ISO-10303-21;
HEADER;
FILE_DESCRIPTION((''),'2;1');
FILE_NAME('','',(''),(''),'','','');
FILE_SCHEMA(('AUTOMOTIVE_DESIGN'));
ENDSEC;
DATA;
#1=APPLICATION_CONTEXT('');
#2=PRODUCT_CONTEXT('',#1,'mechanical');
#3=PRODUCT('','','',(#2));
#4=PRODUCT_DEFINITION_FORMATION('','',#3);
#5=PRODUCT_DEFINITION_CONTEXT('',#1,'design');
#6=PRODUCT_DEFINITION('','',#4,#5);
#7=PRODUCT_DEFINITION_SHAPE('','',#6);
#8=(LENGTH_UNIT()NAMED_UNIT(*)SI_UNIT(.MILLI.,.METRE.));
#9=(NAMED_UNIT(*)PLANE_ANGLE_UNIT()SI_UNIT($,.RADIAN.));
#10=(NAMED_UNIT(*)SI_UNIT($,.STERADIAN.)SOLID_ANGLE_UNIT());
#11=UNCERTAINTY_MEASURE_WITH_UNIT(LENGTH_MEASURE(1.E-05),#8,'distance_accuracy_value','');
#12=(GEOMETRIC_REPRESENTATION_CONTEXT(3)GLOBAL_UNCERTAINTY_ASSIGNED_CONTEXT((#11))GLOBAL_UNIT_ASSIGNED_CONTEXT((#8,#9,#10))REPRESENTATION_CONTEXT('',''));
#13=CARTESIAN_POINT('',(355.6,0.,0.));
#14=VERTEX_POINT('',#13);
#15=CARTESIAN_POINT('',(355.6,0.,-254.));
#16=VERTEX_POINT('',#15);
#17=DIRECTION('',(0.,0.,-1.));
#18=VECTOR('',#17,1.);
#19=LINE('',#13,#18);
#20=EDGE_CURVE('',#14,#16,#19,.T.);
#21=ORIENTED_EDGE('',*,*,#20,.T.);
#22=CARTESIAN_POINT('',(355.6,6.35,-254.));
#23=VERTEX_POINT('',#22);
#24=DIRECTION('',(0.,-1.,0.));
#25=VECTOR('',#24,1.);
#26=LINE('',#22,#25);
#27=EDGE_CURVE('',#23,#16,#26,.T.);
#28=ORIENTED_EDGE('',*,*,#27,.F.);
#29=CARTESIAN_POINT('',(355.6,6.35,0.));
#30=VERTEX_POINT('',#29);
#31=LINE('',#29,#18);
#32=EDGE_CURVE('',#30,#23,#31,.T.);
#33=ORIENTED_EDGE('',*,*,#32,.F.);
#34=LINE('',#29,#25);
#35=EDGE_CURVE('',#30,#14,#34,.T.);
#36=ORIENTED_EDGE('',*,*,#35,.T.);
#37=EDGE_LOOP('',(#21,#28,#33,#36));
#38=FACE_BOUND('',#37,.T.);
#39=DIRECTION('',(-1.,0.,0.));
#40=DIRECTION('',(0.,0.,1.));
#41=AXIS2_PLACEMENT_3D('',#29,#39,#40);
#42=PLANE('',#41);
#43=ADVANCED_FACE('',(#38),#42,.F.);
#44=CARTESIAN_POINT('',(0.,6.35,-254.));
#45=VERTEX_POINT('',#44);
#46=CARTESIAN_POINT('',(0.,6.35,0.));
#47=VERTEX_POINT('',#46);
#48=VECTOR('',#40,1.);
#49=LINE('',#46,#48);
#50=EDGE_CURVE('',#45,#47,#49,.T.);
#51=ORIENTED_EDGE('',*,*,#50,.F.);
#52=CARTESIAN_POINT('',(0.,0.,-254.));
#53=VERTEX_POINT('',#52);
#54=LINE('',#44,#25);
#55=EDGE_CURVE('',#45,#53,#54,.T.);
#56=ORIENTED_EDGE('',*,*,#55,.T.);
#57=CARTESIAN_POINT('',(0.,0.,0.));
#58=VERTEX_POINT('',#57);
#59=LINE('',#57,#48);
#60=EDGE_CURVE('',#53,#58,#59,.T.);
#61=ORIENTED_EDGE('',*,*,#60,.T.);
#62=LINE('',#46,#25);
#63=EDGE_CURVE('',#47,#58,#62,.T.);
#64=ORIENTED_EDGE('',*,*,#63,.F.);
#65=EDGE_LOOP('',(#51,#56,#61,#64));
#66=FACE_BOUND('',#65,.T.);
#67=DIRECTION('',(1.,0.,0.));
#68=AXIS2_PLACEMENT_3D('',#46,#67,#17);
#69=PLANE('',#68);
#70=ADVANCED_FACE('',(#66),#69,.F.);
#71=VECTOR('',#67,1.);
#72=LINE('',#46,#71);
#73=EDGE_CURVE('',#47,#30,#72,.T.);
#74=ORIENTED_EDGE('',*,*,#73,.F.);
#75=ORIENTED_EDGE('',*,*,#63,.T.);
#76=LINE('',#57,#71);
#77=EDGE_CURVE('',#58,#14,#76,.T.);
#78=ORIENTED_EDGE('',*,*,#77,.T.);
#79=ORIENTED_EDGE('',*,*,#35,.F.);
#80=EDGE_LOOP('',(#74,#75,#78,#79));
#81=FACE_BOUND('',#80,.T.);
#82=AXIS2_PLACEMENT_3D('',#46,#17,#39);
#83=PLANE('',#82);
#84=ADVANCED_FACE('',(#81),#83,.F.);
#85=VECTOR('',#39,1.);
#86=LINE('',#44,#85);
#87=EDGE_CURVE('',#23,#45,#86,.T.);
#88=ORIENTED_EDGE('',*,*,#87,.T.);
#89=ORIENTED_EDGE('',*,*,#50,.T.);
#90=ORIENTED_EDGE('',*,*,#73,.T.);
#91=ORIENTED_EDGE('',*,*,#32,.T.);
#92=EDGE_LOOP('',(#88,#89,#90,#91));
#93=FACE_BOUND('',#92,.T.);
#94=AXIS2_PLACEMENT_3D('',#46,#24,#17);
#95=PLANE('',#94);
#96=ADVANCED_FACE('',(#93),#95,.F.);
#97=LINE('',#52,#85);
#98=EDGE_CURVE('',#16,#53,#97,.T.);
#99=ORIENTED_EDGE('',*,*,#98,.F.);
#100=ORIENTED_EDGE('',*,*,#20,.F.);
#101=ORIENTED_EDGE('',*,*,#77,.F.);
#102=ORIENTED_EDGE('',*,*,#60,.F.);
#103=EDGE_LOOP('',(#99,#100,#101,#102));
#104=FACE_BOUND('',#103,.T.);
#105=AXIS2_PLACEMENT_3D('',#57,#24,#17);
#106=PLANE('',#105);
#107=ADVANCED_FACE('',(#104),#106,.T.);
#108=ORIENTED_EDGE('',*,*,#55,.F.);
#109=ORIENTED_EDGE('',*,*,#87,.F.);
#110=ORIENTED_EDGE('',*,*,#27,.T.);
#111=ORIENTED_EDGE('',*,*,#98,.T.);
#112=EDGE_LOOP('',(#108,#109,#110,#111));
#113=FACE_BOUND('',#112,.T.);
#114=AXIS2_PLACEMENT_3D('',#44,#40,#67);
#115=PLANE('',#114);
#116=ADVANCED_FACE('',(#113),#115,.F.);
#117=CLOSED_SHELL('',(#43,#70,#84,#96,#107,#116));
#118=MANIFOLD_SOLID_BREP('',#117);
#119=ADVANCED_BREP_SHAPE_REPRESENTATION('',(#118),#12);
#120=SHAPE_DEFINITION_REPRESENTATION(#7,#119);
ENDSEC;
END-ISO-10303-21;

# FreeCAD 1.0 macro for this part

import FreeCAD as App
import Part
import Sketcher
Q = App.Units.Quantity


def add_polygon(sketch, points):
    """Adds a closed chain of lines whose ends are joined by coincident constraints."""
    first, n = sketch.GeometryCount, len(points)
    for a, b in zip(points, points[1:] + points[:1]):
        sketch.addGeometry(Part.LineSegment(App.Vector(*a, 0), App.Vector(*b, 0)), False)
    for i in range(n):
        sketch.addConstraint(Sketcher.Constraint("Coincident", first + i, 2, first + (i + 1) % n, 1))

doc = App.newDocument("Part")
params = doc.addObject("Spreadsheet::Sheet", "Params")
for row, (alias, value) in enumerate([
    ("sketch1_width", "14 in"),
    ("sketch1_height", "10 in"),
    ("pad1_length", "0.25 in"),
], start=1):
    params.set(f"A{row}", alias)
    params.set(f"B{row}", "=" + value)
    params.setAlias(f"B{row}", alias)

body = doc.addObject("PartDesign::Body", "Body")

sketch1 = body.newObject("Sketcher::SketchObject", "Sketch")
sketch1.AttachmentSupport = (doc.getObject("XZ_Plane"), [""])
sketch1.MapMode = "FlatFace"
add_polygon(sketch1, [(0, -254), (0, 0), (356, 0), (356, -254)])
sketch1.addConstraint([
    Sketcher.Constraint("Vertical", 0),
    Sketcher.Constraint("Horizontal", 1),
    Sketcher.Constraint("Vertical", 2),
    Sketcher.Constraint("Horizontal", 3),
    Sketcher.Constraint("Coincident", 0, 2, -1, 1),
    Sketcher.Constraint("DistanceX", 1, 1, 1, 2, Q("14 in")),
    Sketcher.Constraint("DistanceY", 0, 1, 0, 2, Q("10 in")),
])
sketch1.setExpression("Constraints[9]", "Params.sketch1_width")
sketch1.setExpression("Constraints[10]", "Params.sketch1_height")
pad1 = body.newObject("PartDesign::Pad", "Pad")
pad1.Profile = sketch1
pad1.setExpression("Length", "Params.pad1_length")
pad1.Reversed = True

doc.recompute()
